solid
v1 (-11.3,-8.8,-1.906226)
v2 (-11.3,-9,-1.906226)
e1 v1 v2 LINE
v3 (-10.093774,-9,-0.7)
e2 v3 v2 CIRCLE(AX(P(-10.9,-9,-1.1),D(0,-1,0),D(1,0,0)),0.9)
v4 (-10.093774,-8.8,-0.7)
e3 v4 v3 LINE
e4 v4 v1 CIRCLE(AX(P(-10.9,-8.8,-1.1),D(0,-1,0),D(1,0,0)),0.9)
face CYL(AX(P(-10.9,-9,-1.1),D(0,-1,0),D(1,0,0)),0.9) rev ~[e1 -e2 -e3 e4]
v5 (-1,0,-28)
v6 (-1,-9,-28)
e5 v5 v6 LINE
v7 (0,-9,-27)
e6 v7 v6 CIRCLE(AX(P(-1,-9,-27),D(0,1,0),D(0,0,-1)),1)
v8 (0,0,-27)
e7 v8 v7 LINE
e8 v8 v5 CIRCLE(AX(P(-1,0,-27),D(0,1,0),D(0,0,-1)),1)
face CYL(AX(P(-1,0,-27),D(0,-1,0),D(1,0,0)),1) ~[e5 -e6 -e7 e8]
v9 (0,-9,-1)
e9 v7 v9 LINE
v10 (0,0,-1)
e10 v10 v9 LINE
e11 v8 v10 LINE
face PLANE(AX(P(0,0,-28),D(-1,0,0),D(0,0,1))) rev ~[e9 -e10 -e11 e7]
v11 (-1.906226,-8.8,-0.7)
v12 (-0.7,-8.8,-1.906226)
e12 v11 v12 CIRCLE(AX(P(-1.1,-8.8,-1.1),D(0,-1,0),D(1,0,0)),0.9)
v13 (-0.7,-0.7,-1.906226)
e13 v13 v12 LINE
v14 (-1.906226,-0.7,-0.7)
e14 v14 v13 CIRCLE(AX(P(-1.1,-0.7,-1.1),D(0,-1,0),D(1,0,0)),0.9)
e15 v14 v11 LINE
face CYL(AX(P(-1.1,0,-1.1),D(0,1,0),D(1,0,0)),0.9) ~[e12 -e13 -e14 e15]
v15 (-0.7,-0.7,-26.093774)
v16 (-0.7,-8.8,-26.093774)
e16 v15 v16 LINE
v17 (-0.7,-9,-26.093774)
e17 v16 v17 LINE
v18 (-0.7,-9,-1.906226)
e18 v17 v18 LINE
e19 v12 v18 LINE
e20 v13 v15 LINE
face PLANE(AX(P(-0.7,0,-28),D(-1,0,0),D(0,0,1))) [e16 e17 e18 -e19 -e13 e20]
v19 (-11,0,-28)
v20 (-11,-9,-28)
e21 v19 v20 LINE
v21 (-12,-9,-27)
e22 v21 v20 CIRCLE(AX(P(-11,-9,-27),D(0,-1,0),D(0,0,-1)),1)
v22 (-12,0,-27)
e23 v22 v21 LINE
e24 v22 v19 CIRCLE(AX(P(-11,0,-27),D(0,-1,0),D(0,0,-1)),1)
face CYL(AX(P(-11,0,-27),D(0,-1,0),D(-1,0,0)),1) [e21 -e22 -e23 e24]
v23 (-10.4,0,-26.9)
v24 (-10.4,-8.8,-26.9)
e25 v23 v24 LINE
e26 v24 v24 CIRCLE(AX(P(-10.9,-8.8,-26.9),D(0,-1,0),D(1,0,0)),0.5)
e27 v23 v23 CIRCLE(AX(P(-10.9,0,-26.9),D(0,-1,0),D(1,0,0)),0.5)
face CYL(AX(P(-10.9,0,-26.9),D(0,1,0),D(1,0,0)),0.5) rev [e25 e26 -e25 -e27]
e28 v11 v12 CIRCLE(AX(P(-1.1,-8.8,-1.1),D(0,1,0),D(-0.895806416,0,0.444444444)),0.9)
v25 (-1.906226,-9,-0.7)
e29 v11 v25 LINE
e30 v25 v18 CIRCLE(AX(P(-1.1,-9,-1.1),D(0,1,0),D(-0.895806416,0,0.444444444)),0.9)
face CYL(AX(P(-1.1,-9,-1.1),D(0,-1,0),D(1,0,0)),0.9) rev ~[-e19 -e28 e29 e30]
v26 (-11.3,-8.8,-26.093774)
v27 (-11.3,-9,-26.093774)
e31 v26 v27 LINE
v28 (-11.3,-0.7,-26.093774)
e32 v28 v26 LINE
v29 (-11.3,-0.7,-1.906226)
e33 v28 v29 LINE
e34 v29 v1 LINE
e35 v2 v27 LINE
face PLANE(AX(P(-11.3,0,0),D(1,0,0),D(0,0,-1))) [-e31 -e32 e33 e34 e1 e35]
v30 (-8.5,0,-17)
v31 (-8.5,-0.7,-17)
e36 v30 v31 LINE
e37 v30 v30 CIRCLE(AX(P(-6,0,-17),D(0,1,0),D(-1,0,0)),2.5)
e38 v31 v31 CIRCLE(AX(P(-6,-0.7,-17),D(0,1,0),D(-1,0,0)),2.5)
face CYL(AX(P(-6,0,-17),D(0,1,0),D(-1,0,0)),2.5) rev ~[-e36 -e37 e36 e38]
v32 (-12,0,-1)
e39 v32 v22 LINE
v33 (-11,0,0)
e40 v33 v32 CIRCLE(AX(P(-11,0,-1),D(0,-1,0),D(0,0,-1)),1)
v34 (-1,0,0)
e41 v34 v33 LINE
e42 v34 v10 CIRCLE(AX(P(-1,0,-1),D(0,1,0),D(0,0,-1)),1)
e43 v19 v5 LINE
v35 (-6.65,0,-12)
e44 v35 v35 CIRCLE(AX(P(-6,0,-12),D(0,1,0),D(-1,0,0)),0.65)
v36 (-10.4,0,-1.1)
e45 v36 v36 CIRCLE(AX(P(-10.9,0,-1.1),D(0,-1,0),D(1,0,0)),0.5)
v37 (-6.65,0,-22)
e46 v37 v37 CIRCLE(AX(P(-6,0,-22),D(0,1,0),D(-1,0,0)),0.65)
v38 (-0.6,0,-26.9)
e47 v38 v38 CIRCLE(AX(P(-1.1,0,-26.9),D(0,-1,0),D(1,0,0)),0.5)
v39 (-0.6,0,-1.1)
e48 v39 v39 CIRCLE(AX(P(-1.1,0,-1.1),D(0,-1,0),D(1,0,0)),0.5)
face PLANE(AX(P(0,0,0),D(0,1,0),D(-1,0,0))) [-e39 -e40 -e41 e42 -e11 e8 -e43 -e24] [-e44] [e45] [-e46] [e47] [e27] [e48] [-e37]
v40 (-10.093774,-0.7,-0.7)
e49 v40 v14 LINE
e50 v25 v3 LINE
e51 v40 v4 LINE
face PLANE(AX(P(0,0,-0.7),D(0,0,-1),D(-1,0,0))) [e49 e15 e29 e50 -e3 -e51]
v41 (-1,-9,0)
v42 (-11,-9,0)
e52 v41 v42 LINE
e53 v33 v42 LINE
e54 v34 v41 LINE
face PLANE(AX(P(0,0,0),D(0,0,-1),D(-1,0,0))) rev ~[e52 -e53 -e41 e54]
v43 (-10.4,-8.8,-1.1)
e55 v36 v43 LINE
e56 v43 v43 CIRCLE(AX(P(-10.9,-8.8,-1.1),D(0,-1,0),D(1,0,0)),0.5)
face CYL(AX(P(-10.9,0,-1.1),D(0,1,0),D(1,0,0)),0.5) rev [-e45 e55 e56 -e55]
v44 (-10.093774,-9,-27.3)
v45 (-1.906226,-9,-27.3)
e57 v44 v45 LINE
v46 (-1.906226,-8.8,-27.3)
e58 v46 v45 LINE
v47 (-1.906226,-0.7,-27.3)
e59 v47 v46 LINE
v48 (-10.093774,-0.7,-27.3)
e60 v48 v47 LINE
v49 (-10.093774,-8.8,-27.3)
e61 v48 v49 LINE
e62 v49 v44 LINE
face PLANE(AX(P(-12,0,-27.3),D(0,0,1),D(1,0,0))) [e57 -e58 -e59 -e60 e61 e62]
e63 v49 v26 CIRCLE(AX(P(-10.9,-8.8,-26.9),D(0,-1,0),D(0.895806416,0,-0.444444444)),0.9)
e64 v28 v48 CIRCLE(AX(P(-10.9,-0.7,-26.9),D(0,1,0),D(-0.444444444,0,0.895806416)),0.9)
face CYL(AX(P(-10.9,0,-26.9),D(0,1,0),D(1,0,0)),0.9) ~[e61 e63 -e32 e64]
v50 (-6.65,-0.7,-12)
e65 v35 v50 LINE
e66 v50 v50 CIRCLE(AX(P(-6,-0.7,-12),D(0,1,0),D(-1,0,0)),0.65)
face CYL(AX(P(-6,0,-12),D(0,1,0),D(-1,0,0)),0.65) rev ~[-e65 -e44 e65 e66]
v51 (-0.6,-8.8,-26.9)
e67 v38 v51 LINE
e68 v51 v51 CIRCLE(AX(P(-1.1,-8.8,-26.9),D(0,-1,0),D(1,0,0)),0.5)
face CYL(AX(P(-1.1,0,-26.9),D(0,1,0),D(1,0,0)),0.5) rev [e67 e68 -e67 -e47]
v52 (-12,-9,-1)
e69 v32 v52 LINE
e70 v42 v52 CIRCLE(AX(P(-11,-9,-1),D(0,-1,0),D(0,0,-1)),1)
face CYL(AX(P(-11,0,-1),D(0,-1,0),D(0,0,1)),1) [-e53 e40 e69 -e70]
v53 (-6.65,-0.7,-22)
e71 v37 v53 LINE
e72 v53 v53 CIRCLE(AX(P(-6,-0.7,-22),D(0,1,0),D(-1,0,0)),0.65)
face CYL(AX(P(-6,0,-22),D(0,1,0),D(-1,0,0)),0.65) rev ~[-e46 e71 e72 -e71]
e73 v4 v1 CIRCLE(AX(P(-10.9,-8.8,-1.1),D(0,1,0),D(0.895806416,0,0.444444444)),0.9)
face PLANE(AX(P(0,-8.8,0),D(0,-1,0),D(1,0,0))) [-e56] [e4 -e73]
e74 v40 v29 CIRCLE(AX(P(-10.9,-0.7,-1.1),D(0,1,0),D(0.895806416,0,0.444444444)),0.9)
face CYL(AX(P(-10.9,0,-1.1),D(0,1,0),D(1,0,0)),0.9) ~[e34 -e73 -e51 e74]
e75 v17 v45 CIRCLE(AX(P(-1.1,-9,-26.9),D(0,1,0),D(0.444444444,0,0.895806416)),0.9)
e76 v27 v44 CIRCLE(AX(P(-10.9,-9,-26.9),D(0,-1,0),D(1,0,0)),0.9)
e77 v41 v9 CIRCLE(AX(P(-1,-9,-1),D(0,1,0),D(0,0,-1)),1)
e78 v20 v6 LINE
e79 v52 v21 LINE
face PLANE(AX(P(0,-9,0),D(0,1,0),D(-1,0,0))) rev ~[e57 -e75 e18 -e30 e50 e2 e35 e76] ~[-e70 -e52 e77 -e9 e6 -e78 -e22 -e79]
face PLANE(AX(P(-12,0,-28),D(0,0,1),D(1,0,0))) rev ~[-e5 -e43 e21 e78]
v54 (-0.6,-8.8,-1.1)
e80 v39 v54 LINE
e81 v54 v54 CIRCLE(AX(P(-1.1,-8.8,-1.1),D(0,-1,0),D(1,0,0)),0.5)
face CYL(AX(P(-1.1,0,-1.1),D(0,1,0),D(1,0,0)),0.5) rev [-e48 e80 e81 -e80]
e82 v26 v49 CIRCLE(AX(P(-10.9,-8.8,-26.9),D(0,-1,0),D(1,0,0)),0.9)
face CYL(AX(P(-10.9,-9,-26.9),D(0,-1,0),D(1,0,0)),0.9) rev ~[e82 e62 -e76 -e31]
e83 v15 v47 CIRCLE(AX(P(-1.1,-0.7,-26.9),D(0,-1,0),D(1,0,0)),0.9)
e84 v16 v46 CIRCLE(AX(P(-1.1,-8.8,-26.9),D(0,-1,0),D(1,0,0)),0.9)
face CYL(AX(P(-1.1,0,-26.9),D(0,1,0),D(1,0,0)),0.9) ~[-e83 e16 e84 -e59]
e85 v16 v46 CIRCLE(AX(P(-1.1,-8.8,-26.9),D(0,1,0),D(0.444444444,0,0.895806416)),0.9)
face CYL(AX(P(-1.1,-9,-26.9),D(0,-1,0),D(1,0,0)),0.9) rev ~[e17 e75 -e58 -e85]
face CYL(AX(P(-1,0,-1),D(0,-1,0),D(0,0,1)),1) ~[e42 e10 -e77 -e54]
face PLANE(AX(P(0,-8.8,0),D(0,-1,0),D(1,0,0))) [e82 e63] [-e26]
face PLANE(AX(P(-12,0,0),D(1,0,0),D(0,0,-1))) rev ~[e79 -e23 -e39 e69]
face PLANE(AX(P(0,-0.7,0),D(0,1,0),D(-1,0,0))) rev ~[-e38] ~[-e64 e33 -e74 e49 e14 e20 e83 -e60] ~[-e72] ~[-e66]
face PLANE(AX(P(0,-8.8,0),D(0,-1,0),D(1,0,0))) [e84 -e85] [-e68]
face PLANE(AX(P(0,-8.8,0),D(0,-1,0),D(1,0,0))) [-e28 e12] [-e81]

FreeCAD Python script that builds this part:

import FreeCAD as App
import Part
import Sketcher

V = App.Vector
Q = App.Units.Quantity


def edges_at(feature, points):
    """Names of the edges that pass closest to the given points."""
    edges = feature.Shape.Edges
    near = lambda p: min(range(len(edges)), key=lambda i: edges[i].distToShape(Part.Vertex(*p))[0])
    return sorted({f"Edge{near(p) + 1}" for p in points})


def faces_at(feature, points):
    """Names of the faces that lie closest to the given points."""
    faces = feature.Shape.Faces
    near = lambda p: min(range(len(faces)), key=lambda i: faces[i].distToShape(Part.Vertex(*p))[0])
    return sorted({f"Face{near(p) + 1}" for p in points})


def add_polygon(sketch, points):
    """Adds a closed chain of lines whose ends are joined by coincident constraints."""
    first, n = sketch.GeometryCount, len(points)
    for a, b in zip(points, points[1:] + points[:1]):
        sketch.addGeometry(Part.LineSegment(App.Vector(*a, 0), App.Vector(*b, 0)), False)
    for i in range(n):
        sketch.addConstraint(Sketcher.Constraint("Coincident", first + i, 2, first + (i + 1) % n, 1))

doc = App.newDocument("Part")
params = doc.addObject("Spreadsheet::Sheet", "Params")
for row, (alias, value) in enumerate([
    ("sketch1_width", "12 mm"),
    ("sketch1_height", "28 mm"),
    ("pad1_length", "9 mm"),
    ("thickness_wall", "0.7 mm"),
    ("sketch2_diameter", "5 mm"),
    ("sketch2_diameter2", "1.3 mm"),
    ("sketch3_diameter", "1.8 mm"),
    ("sketch4_diameter", "1 mm"),
    ("sketch4_diameter2", "1.8 mm"),
    ("pad2_length", "8.8 mm"),
    ("fillet_radius", "1 mm"),
], start=1):
    params.set(f"A{row}", alias)
    params.set(f"B{row}", "=" + value)
    params.setAlias(f"B{row}", alias)

body = doc.addObject("PartDesign::Body", "Body")

# Sketch on XZ plane
sketch1 = doc.addObject("Sketcher::SketchObject", "Sketch")
body.addObject(sketch1)
sketch1.AttachmentSupport = (doc.XZ_Plane, [""])
sketch1.MapMode = "FlatFace"
add_polygon(sketch1, [(-12, 0), (0, 0), (0, -28), (-12, -28)])  # lines 0-3
sketch1.addConstraint([
    Sketcher.Constraint("Horizontal", 0),
    Sketcher.Constraint("Vertical", 1),
    Sketcher.Constraint("Horizontal", 2),
    Sketcher.Constraint("Vertical", 3),
    Sketcher.Constraint("Coincident", 0, 2, -1, 1),
    Sketcher.Constraint("DistanceX", 0, 1, 0, 2, Q("12 mm")),
    Sketcher.Constraint("DistanceY", 1, 2, 1, 1, Q("28 mm")),
])
sketch1.setExpression("Constraints[9]", "Params.sketch1_width")
sketch1.setExpression("Constraints[10]", "Params.sketch1_height")
pad1 = doc.addObject("PartDesign::Pad", "Pad")
body.addObject(pad1)
pad1.Profile = sketch1
pad1.setExpression("Length", "Params.pad1_length")
doc.recompute()

thickness = doc.addObject("PartDesign::Thickness", "Thickness")
body.addObject(thickness)
thickness.Base = (pad1, faces_at(pad1, [(-4, -9, -9.333)]))
thickness.setExpression("Value", "Params.thickness_wall")
thickness.Reversed = True
thickness.Join = "Intersection"

# Sketch on XZ plane
sketch2 = doc.addObject("Sketcher::SketchObject", "Sketch001")
body.addObject(sketch2)
sketch2.AttachmentSupport = (doc.XZ_Plane, [""])
sketch2.MapMode = "FlatFace"
sketch2.addGeometry([
    Part.Circle(V(-6, -12, 0), V(0, 0, 1), 0.65),
    Part.Circle(V(-6, -17, 0), V(0, 0, 1), 2.5),
    Part.Circle(V(-6, -22, 0), V(0, 0, 1), 0.65),
], False)
sketch2.addConstraint([
    Sketcher.Constraint("Equal", 0, 2),
    Sketcher.Constraint("Vertical", 0, 3, 1, 3),
    Sketcher.Constraint("Vertical", 1, 3, 2, 3),
    Sketcher.Constraint("Diameter", 1, Q("5 mm")),
    Sketcher.Constraint("Diameter", 0, Q("1.3 mm")),
    Sketcher.Constraint("DistanceX", 0, 3, -1, 1, Q("6 mm")),
    Sketcher.Constraint("DistanceY", 1, 3, 0, 3, Q("5 mm")),
    Sketcher.Constraint("DistanceY", 2, 3, 1, 3, Q("5 mm")),
    Sketcher.Constraint("DistanceY", 0, 3, -1, 1, Q("12 mm")),
])
sketch2.setExpression("Constraints[3]", "Params.sketch2_diameter")
sketch2.setExpression("Constraints[4]", "Params.sketch2_diameter2")
pocket1 = doc.addObject("PartDesign::Pocket", "Pocket")
body.addObject(pocket1)
pocket1.Profile = sketch2
pocket1.Type = "ThroughAll"
pocket1.Reversed = True

# Sketch on XZ plane
sketch3 = doc.addObject("Sketcher::SketchObject", "Sketch002")
body.addObject(sketch3)
sketch3.AttachmentSupport = (doc.XZ_Plane, [""])
sketch3.MapMode = "FlatFace"
sketch3.AttachmentOffset = App.Placement(V(0, 0, 9), App.Rotation())
sketch3.addGeometry([
    Part.Circle(V(-1.1, -26.9, 0), V(0, 0, 1), 0.9),
    Part.Circle(V(-10.9, -26.9, 0), V(0, 0, 1), 0.9),
    Part.Circle(V(-1.1, -1.1, 0), V(0, 0, 1), 0.9),
    Part.Circle(V(-10.9, -1.1, 0), V(0, 0, 1), 0.9),
], False)
sketch3.addConstraint([
    Sketcher.Constraint("Equal", 0, 1),
    Sketcher.Constraint("Equal", 1, 2),
    Sketcher.Constraint("Equal", 2, 3),
    Sketcher.Constraint("Horizontal", 0, 3, 1, 3),
    Sketcher.Constraint("Horizontal", 2, 3, 3, 3),
    Sketcher.Constraint("Vertical", 0, 3, 2, 3),
    Sketcher.Constraint("Vertical", 1, 3, 3, 3),
    Sketcher.Constraint("Diameter", 0, Q("1.8 mm")),
    Sketcher.Constraint("DistanceX", 0, 3, -1, 1, Q("1.1 mm")),
    Sketcher.Constraint("DistanceY", 2, 3, -1, 1, Q("1.1 mm")),
    Sketcher.Constraint("DistanceY", 0, 3, -1, 1, Q("26.9 mm")),
    Sketcher.Constraint("DistanceX", 1, 3, -1, 1, Q("10.9 mm")),
])
sketch3.setExpression("Constraints[7]", "Params.sketch3_diameter")
pocket2 = doc.addObject("PartDesign::Pocket", "Pocket001")
body.addObject(pocket2)
pocket2.Profile = sketch3
pocket2.Type = "ThroughAll"

# Sketch on XZ plane
sketch4 = doc.addObject("Sketcher::SketchObject", "Sketch003")
body.addObject(sketch4)
sketch4.AttachmentSupport = (doc.XZ_Plane, [""])
sketch4.MapMode = "FlatFace"
sketch4.addGeometry([
    Part.Circle(V(-1.1, -26.9, 0), V(0, 0, 1), 0.9),  # 0
    Part.Circle(V(-1.1, -26.9, 0), V(0, 0, 1), 0.5),  # 1
    Part.Circle(V(-10.9, -26.9, 0), V(0, 0, 1), 0.9),  # 2
    Part.Circle(V(-10.9, -26.9, 0), V(0, 0, 1), 0.5),  # 3
    Part.Circle(V(-1.1, -1.1, 0), V(0, 0, 1), 0.9),  # 4
    Part.Circle(V(-1.1, -1.1, 0), V(0, 0, 1), 0.5),  # 5
    Part.Circle(V(-10.9, -1.1, 0), V(0, 0, 1), 0.9),  # 6
    Part.Circle(V(-10.9, -1.1, 0), V(0, 0, 1), 0.5),  # 7
], False)
sketch4.addConstraint([
    Sketcher.Constraint("Coincident", 1, 3, 0, 3),
    Sketcher.Constraint("Coincident", 3, 3, 2, 3),
    Sketcher.Constraint("Coincident", 5, 3, 4, 3),
    Sketcher.Constraint("Coincident", 7, 3, 6, 3),
    Sketcher.Constraint("Equal", 0, 2),
    Sketcher.Constraint("Equal", 1, 3),
    Sketcher.Constraint("Equal", 2, 4),
    Sketcher.Constraint("Equal", 3, 5),
    Sketcher.Constraint("Equal", 4, 6),
    Sketcher.Constraint("Equal", 5, 7),
    Sketcher.Constraint("Horizontal", 1, 3, 2, 3),
    Sketcher.Constraint("Horizontal", 5, 3, 6, 3),
    Sketcher.Constraint("Vertical", 1, 3, 4, 3),
    Sketcher.Constraint("Vertical", 3, 3, 6, 3),
    Sketcher.Constraint("Diameter", 1, Q("1 mm")),
    Sketcher.Constraint("Diameter", 0, Q("1.8 mm")),
    Sketcher.Constraint("DistanceX", 0, 3, -1, 1, Q("1.1 mm")),
    Sketcher.Constraint("DistanceY", 4, 3, -1, 1, Q("1.1 mm")),
    Sketcher.Constraint("DistanceY", 0, 3, -1, 1, Q("26.9 mm")),
    Sketcher.Constraint("DistanceX", 2, 3, -1, 1, Q("10.9 mm")),
])
sketch4.setExpression("Constraints[14]", "Params.sketch4_diameter")
sketch4.setExpression("Constraints[15]", "Params.sketch4_diameter2")
pad2 = doc.addObject("PartDesign::Pad", "Pad001")
body.addObject(pad2)
pad2.Profile = sketch4
pad2.setExpression("Length", "Params.pad2_length")
doc.recompute()

fillet = doc.addObject("PartDesign::Fillet", "Fillet")
body.addObject(fillet)
fillet.Base = (pad2, edges_at(pad2, [
    (-12, -4.5, -28),
    (0, -4.5, -28),
    (0, -4.5, 0),
    (-12, -4.5, 0),
]))
fillet.setExpression("Radius", "Params.fillet_radius")

doc.recompute()
